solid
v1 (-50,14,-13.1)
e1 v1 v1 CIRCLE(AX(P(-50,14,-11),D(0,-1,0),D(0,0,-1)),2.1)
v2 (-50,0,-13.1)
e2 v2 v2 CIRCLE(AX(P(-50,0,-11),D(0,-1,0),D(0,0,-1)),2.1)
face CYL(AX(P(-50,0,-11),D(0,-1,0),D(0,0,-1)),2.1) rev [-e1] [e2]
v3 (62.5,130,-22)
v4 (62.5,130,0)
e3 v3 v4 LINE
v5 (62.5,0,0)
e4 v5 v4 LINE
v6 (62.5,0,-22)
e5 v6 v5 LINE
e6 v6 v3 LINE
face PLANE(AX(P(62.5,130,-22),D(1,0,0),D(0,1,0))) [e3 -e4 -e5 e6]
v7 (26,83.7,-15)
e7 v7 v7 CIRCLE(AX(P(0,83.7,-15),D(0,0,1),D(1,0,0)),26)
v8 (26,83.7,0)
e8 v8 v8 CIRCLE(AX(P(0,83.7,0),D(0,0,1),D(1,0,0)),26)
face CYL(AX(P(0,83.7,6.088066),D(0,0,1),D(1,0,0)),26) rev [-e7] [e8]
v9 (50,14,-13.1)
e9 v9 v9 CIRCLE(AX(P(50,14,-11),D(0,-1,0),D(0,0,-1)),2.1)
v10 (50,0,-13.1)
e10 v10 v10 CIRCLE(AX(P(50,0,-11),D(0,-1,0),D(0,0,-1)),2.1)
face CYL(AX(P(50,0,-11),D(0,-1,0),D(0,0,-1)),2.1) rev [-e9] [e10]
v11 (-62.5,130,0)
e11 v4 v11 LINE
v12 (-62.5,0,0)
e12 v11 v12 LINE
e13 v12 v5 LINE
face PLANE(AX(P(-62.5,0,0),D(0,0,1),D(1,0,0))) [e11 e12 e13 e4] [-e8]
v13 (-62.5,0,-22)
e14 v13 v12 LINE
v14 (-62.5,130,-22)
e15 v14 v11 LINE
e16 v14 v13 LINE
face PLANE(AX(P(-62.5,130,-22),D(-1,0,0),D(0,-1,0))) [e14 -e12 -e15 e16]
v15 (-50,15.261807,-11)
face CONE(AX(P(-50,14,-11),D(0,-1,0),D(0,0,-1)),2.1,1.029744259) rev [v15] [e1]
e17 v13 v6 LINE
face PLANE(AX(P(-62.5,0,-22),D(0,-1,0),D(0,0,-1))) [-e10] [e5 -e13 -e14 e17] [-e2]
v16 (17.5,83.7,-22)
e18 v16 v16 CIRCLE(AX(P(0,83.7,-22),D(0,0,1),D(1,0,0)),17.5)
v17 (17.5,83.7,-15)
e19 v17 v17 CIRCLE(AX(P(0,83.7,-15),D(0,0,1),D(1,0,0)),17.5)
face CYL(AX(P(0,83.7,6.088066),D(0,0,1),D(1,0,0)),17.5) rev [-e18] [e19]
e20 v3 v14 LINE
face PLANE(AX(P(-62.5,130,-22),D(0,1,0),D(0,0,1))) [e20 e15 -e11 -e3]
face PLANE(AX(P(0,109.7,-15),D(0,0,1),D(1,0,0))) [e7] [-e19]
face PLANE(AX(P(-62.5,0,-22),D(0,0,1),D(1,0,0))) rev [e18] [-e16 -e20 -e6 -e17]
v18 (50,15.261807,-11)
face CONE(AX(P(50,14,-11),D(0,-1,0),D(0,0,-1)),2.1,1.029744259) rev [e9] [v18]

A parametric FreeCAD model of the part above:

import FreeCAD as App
import Part
import Sketcher

V = App.Vector
Q = App.Units.Quantity

doc = App.newDocument("Part")
params = doc.addObject("Spreadsheet::Sheet", "Params")
for row, (alias, value) in enumerate([
    ("sketch1_width", "125 mm"),
    ("sketch1_height", "130 mm"),
    ("pad1_length", "22 mm"),
    ("sketch2_width", "26 mm"),
    ("sketch2_height", "15 mm"),
    ("sketch2_height2", "22 mm"),
    ("sketch2_width2", "17.5 mm"),
    ("groove_angle", "360 deg"),
    ("sketch3_diameter", "4.2 mm"),
    ("hole_diameter", "4.2 mm"),
    ("hole_depth", "14 mm"),
], start=1):
    params.set(f"A{row}", alias)
    params.set(f"B{row}", "=" + value)
    params.setAlias(f"B{row}", alias)

body = doc.addObject("PartDesign::Body", "Body")

sketch1 = doc.addObject("Sketcher::SketchObject", "Sketch")
body.addObject(sketch1)
sketch1.AttachmentSupport = (doc.XY_Plane, [""])
sketch1.MapMode = "FlatFace"
sketch1.addGeometry([
    Part.LineSegment(V(-62.5, 130, 0), V(-62.5, 0, 0)),
    Part.LineSegment(V(-62.5, 0, 0), V(62.5, 0, 0)),
    Part.LineSegment(V(62.5, 0, 0), V(62.5, 130, 0)),
    Part.LineSegment(V(62.5, 130, 0), V(-62.5, 130, 0)),
], False)
sketch1.addConstraint([
    Sketcher.Constraint("Coincident", 0, 2, 1, 1),
    Sketcher.Constraint("Coincident", 1, 2, 2, 1),
    Sketcher.Constraint("Coincident", 2, 2, 3, 1),
    Sketcher.Constraint("Coincident", 3, 2, 0, 1),
    Sketcher.Constraint("Vertical", 0),
    Sketcher.Constraint("Horizontal", 1),
    Sketcher.Constraint("Vertical", 2),
    Sketcher.Constraint("Horizontal", 3),
    Sketcher.Constraint("Symmetric", 0, 2, 1, 2, -1, 1),
    Sketcher.Constraint("DistanceX", 1, 1, 1, 2, Q("125 mm")),
    Sketcher.Constraint("DistanceY", 0, 2, 0, 1, Q("130 mm")),
])
sketch1.setExpression("Constraints[9]", "Params.sketch1_width")
sketch1.setExpression("Constraints[10]", "Params.sketch1_height")
pad1 = doc.addObject("PartDesign::Pad", "Pad")
body.addObject(pad1)
pad1.Profile = sketch1
pad1.setExpression("Length", "Params.pad1_length")
pad1.Reversed = True

sketch2 = doc.addObject("Sketcher::SketchObject", "Sketch001")
body.addObject(sketch2)
sketch2.AttachmentSupport = (doc.YZ_Plane, [""])
sketch2.MapMode = "FlatFace"
sketch2.addGeometry([
    Part.LineSegment(V(109.7, -15, 0), V(109.7, 0, 0)),
    Part.LineSegment(V(109.7, 0, 0), V(83.7, 0, 0)),
    Part.LineSegment(V(83.7, 0, 0), V(83.7, -22, 0)),
    Part.LineSegment(V(83.7, -22, 0), V(101.2, -22, 0)),
    Part.LineSegment(V(101.2, -22, 0), V(101.2, -15, 0)),
    Part.LineSegment(V(101.2, -15, 0), V(109.7, -15, 0)),
], False)
sketch2.addGeometry(Part.LineSegment(V(83.7, 0, 0), V(83.7, -22, 0)), True)
sketch2.addConstraint([
    Sketcher.Constraint("Coincident", 0, 2, 1, 1),
    Sketcher.Constraint("Coincident", 1, 2, 2, 1),
    Sketcher.Constraint("Coincident", 2, 2, 3, 1),
    Sketcher.Constraint("Coincident", 3, 2, 4, 1),
    Sketcher.Constraint("Coincident", 4, 2, 5, 1),
    Sketcher.Constraint("Coincident", 5, 2, 0, 1),
    Sketcher.Constraint("Vertical", 0),
    Sketcher.Constraint("Horizontal", 1),
    Sketcher.Constraint("Vertical", 2),
    Sketcher.Constraint("Horizontal", 3),
    Sketcher.Constraint("Vertical", 4),
    Sketcher.Constraint("Horizontal", 5),
    Sketcher.Constraint("Vertical", 6),
    Sketcher.Constraint("Coincident", 6, 1, 1, 2),
    Sketcher.Constraint("PointOnObject", 0, 2, -1),
    Sketcher.Constraint("Horizontal", 3, 2, 6, 2),
    Sketcher.Constraint("DistanceX", 1, 2, 1, 1, Q("26 mm")),
    Sketcher.Constraint("DistanceY", 0, 1, 0, 2, Q("15 mm")),
    Sketcher.Constraint("DistanceY", 2, 2, 2, 1, Q("22 mm")),
    Sketcher.Constraint("DistanceX", 3, 1, 3, 2, Q("17.5 mm")),
    Sketcher.Constraint("DistanceX", -1, 1, 0, 2, Q("109.7 mm")),
])
sketch2.setExpression("Constraints[16]", "Params.sketch2_width")
sketch2.setExpression("Constraints[17]", "Params.sketch2_height")
sketch2.setExpression("Constraints[18]", "Params.sketch2_height2")
sketch2.setExpression("Constraints[19]", "Params.sketch2_width2")
groove = doc.addObject("PartDesign::Groove", "Groove")
body.addObject(groove)
groove.Profile = sketch2
groove.ReferenceAxis = (sketch2, ["Axis0"])
groove.setExpression("Angle", "Params.groove_angle")

sketch3 = doc.addObject("Sketcher::SketchObject", "Sketch002")
body.addObject(sketch3)
sketch3.AttachmentSupport = (doc.XZ_Plane, [""])
sketch3.MapMode = "FlatFace"
sketch3.addGeometry([
    Part.Circle(V(-50, -11, 0), V(0, 0, 1), 2.1),
    Part.Circle(V(50, -11, 0), V(0, 0, 1), 2.1),
], False)
sketch3.addConstraint([
    Sketcher.Constraint("Equal", 0, 1),
    Sketcher.Constraint("Symmetric", 0, 3, 1, 3, -2),
    Sketcher.Constraint("Diameter", 0, Q("4.2 mm")),
    Sketcher.Constraint("DistanceX", 0, 3, -1, 1, Q("50 mm")),
    Sketcher.Constraint("DistanceY", 0, 3, -1, 1, Q("11 mm")),
])
sketch3.setExpression("Constraints[2]", "Params.sketch3_diameter")
doc.recompute()
hole = doc.addObject("PartDesign::Hole", "Hole")
body.addObject(hole)
hole.Profile = sketch3
hole.ThreadType = "None"
hole.setExpression("Diameter", "Params.hole_diameter")
hole.DepthType = "Dimension"
hole.setExpression("Depth", "Params.hole_depth")
hole.DrillPoint = "Angled"
hole.DrillPointAngle = 118

doc.recompute()
